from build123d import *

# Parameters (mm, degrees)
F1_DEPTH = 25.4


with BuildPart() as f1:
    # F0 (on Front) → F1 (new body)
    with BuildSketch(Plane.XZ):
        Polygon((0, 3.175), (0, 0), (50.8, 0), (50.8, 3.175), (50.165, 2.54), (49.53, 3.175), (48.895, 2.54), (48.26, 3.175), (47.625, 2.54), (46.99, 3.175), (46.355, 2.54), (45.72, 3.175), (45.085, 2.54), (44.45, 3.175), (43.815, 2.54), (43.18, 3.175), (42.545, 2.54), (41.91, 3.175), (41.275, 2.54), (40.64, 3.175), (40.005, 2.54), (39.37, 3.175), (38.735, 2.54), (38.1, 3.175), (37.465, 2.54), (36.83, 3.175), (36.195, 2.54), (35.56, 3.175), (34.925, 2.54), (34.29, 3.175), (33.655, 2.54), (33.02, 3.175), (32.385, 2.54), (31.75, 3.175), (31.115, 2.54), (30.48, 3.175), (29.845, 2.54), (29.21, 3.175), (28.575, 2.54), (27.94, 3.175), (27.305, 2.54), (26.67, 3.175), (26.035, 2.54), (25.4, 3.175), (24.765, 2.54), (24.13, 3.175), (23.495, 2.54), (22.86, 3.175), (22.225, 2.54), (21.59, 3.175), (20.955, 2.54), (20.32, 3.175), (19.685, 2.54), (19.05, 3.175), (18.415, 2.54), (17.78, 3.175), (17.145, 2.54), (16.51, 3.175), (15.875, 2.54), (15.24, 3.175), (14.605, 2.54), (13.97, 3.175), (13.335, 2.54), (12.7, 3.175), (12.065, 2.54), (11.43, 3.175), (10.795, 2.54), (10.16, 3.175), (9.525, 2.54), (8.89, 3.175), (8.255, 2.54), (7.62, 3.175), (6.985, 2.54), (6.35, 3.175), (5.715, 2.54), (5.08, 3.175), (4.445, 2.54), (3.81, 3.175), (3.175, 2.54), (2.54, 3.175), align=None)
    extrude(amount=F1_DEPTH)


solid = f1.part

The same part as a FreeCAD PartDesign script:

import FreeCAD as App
import Part
import Sketcher
from FreeCAD import Vector
Q = App.Units.Quantity

doc = App.newDocument("Part")
body = doc.addObject("PartDesign::Body", "Body")

sketch1 = body.newObject("Sketcher::SketchObject", "Sketch")
sketch1.AttachmentSupport = (doc.getObject("XZ_Plane"), [""])
sketch1.MapMode = "FlatFace"
sketch1.addGeometry([
    Part.LineSegment(Vector(0, 3.175, 0), Vector(0, 0, 0)),
    Part.LineSegment(Vector(0, 0, 0), Vector(50.8, 0, 0)),
    Part.LineSegment(Vector(50.8, 0, 0), Vector(50.8, 3.175, 0)),
    Part.LineSegment(Vector(50.8, 3.175, 0), Vector(50.165, 2.54, 0)),
    Part.LineSegment(Vector(50.165, 2.54, 0), Vector(49.53, 3.175, 0)),
    Part.LineSegment(Vector(49.53, 3.175, 0), Vector(48.895, 2.54, 0)),
    Part.LineSegment(Vector(48.895, 2.54, 0), Vector(48.26, 3.175, 0)),
    Part.LineSegment(Vector(48.26, 3.175, 0), Vector(47.625, 2.54, 0)),
    Part.LineSegment(Vector(47.625, 2.54, 0), Vector(46.99, 3.175, 0)),
    Part.LineSegment(Vector(46.99, 3.175, 0), Vector(46.355, 2.54, 0)),
    Part.LineSegment(Vector(46.355, 2.54, 0), Vector(45.72, 3.175, 0)),
    Part.LineSegment(Vector(45.72, 3.175, 0), Vector(45.085, 2.54, 0)),
    Part.LineSegment(Vector(45.085, 2.54, 0), Vector(44.45, 3.175, 0)),
    Part.LineSegment(Vector(44.45, 3.175, 0), Vector(43.815, 2.54, 0)),
    Part.LineSegment(Vector(43.815, 2.54, 0), Vector(43.18, 3.175, 0)),
    Part.LineSegment(Vector(43.18, 3.175, 0), Vector(42.545, 2.54, 0)),
    Part.LineSegment(Vector(42.545, 2.54, 0), Vector(41.91, 3.175, 0)),
    Part.LineSegment(Vector(41.91, 3.175, 0), Vector(41.275, 2.54, 0)),
    Part.LineSegment(Vector(41.275, 2.54, 0), Vector(40.64, 3.175, 0)),
    Part.LineSegment(Vector(40.64, 3.175, 0), Vector(40.005, 2.54, 0)),
    Part.LineSegment(Vector(40.005, 2.54, 0), Vector(39.37, 3.175, 0)),
    Part.LineSegment(Vector(39.37, 3.175, 0), Vector(38.735, 2.54, 0)),
    Part.LineSegment(Vector(38.735, 2.54, 0), Vector(38.1, 3.175, 0)),
    Part.LineSegment(Vector(38.1, 3.175, 0), Vector(37.465, 2.54, 0)),
    Part.LineSegment(Vector(37.465, 2.54, 0), Vector(36.83, 3.175, 0)),
    Part.LineSegment(Vector(36.83, 3.175, 0), Vector(36.195, 2.54, 0)),
    Part.LineSegment(Vector(36.195, 2.54, 0), Vector(35.56, 3.175, 0)),
    Part.LineSegment(Vector(35.56, 3.175, 0), Vector(34.925, 2.54, 0)),
    Part.LineSegment(Vector(34.925, 2.54, 0), Vector(34.29, 3.175, 0)),
    Part.LineSegment(Vector(34.29, 3.175, 0), Vector(33.655, 2.54, 0)),
    Part.LineSegment(Vector(33.655, 2.54, 0), Vector(33.02, 3.175, 0)),
    Part.LineSegment(Vector(33.02, 3.175, 0), Vector(32.385, 2.54, 0)),
    Part.LineSegment(Vector(32.385, 2.54, 0), Vector(31.75, 3.175, 0)),
    Part.LineSegment(Vector(31.75, 3.175, 0), Vector(31.115, 2.54, 0)),
    Part.LineSegment(Vector(31.115, 2.54, 0), Vector(30.48, 3.175, 0)),
    Part.LineSegment(Vector(30.48, 3.175, 0), Vector(29.845, 2.54, 0)),
    Part.LineSegment(Vector(29.845, 2.54, 0), Vector(29.21, 3.175, 0)),
    Part.LineSegment(Vector(29.21, 3.175, 0), Vector(28.575, 2.54, 0)),
    Part.LineSegment(Vector(28.575, 2.54, 0), Vector(27.94, 3.175, 0)),
    Part.LineSegment(Vector(27.94, 3.175, 0), Vector(27.305, 2.54, 0)),
    Part.LineSegment(Vector(27.305, 2.54, 0), Vector(26.67, 3.175, 0)),
    Part.LineSegment(Vector(26.67, 3.175, 0), Vector(26.035, 2.54, 0)),
    Part.LineSegment(Vector(26.035, 2.54, 0), Vector(25.4, 3.175, 0)),
    Part.LineSegment(Vector(25.4, 3.175, 0), Vector(24.765, 2.54, 0)),
    Part.LineSegment(Vector(24.765, 2.54, 0), Vector(24.13, 3.175, 0)),
    Part.LineSegment(Vector(24.13, 3.175, 0), Vector(23.495, 2.54, 0)),
    Part.LineSegment(Vector(23.495, 2.54, 0), Vector(22.86, 3.175, 0)),
    Part.LineSegment(Vector(22.86, 3.175, 0), Vector(22.225, 2.54, 0)),
    Part.LineSegment(Vector(22.225, 2.54, 0), Vector(21.59, 3.175, 0)),
    Part.LineSegment(Vector(21.59, 3.175, 0), Vector(20.955, 2.54, 0)),
    Part.LineSegment(Vector(20.955, 2.54, 0), Vector(20.32, 3.175, 0)),
    Part.LineSegment(Vector(20.32, 3.175, 0), Vector(19.685, 2.54, 0)),
    Part.LineSegment(Vector(19.685, 2.54, 0), Vector(19.05, 3.175, 0)),
    Part.LineSegment(Vector(19.05, 3.175, 0), Vector(18.415, 2.54, 0)),
    Part.LineSegment(Vector(18.415, 2.54, 0), Vector(17.78, 3.175, 0)),
    Part.LineSegment(Vector(17.78, 3.175, 0), Vector(17.145, 2.54, 0)),
    Part.LineSegment(Vector(17.145, 2.54, 0), Vector(16.51, 3.175, 0)),
    Part.LineSegment(Vector(16.51, 3.175, 0), Vector(15.875, 2.54, 0)),
    Part.LineSegment(Vector(15.875, 2.54, 0), Vector(15.24, 3.175, 0)),
    Part.LineSegment(Vector(15.24, 3.175, 0), Vector(14.605, 2.54, 0)),
    Part.LineSegment(Vector(14.605, 2.54, 0), Vector(13.97, 3.175, 0)),
    Part.LineSegment(Vector(13.97, 3.175, 0), Vector(13.335, 2.54, 0)),
    Part.LineSegment(Vector(13.335, 2.54, 0), Vector(12.7, 3.175, 0)),
    Part.LineSegment(Vector(12.7, 3.175, 0), Vector(12.065, 2.54, 0)),
    Part.LineSegment(Vector(12.065, 2.54, 0), Vector(11.43, 3.175, 0)),
    Part.LineSegment(Vector(11.43, 3.175, 0), Vector(10.795, 2.54, 0)),
    Part.LineSegment(Vector(10.795, 2.54, 0), Vector(10.16, 3.175, 0)),
    Part.LineSegment(Vector(10.16, 3.175, 0), Vector(9.525, 2.54, 0)),
    Part.LineSegment(Vector(9.525, 2.54, 0), Vector(8.89, 3.175, 0)),
    Part.LineSegment(Vector(8.89, 3.175, 0), Vector(8.255, 2.54, 0)),
    Part.LineSegment(Vector(8.255, 2.54, 0), Vector(7.62, 3.175, 0)),
    Part.LineSegment(Vector(7.62, 3.175, 0), Vector(6.985, 2.54, 0)),
    Part.LineSegment(Vector(6.985, 2.54, 0), Vector(6.35, 3.175, 0)),
    Part.LineSegment(Vector(6.35, 3.175, 0), Vector(5.715, 2.54, 0)),
    Part.LineSegment(Vector(5.715, 2.54, 0), Vector(5.08, 3.175, 0)),
    Part.LineSegment(Vector(5.08, 3.175, 0), Vector(4.445, 2.54, 0)),
    Part.LineSegment(Vector(4.445, 2.54, 0), Vector(3.81, 3.175, 0)),
    Part.LineSegment(Vector(3.81, 3.175, 0), Vector(3.175, 2.54, 0)),
    Part.LineSegment(Vector(3.175, 2.54, 0), Vector(2.54, 3.175, 0)),
    Part.LineSegment(Vector(2.54, 3.175, 0), Vector(0, 3.175, 0)),
], False)
sketch1.addConstraint([
    Sketcher.Constraint("Coincident", 0, 2, 1, 1),
    Sketcher.Constraint("Coincident", 1, 2, 2, 1),
    Sketcher.Constraint("Coincident", 2, 2, 3, 1),
    Sketcher.Constraint("Coincident", 3, 2, 4, 1),
    Sketcher.Constraint("Coincident", 4, 2, 5, 1),
    Sketcher.Constraint("Coincident", 5, 2, 6, 1),
    Sketcher.Constraint("Coincident", 6, 2, 7, 1),
    Sketcher.Constraint("Coincident", 7, 2, 8, 1),
    Sketcher.Constraint("Coincident", 8, 2, 9, 1),
    Sketcher.Constraint("Coincident", 9, 2, 10, 1),
    Sketcher.Constraint("Coincident", 10, 2, 11, 1),
    Sketcher.Constraint("Coincident", 11, 2, 12, 1),
    Sketcher.Constraint("Coincident", 12, 2, 13, 1),
    Sketcher.Constraint("Coincident", 13, 2, 14, 1),
    Sketcher.Constraint("Coincident", 14, 2, 15, 1),
    Sketcher.Constraint("Coincident", 15, 2, 16, 1),
    Sketcher.Constraint("Coincident", 16, 2, 17, 1),
    Sketcher.Constraint("Coincident", 17, 2, 18, 1),
    Sketcher.Constraint("Coincident", 18, 2, 19, 1),
    Sketcher.Constraint("Coincident", 19, 2, 20, 1),
    Sketcher.Constraint("Coincident", 20, 2, 21, 1),
    Sketcher.Constraint("Coincident", 21, 2, 22, 1),
    Sketcher.Constraint("Coincident", 22, 2, 23, 1),
    Sketcher.Constraint("Coincident", 23, 2, 24, 1),
    Sketcher.Constraint("Coincident", 24, 2, 25, 1),
    Sketcher.Constraint("Coincident", 25, 2, 26, 1),
    Sketcher.Constraint("Coincident", 26, 2, 27, 1),
    Sketcher.Constraint("Coincident", 27, 2, 28, 1),
    Sketcher.Constraint("Coincident", 28, 2, 29, 1),
    Sketcher.Constraint("Coincident", 29, 2, 30, 1),
    Sketcher.Constraint("Coincident", 30, 2, 31, 1),
    Sketcher.Constraint("Coincident", 31, 2, 32, 1),
    Sketcher.Constraint("Coincident", 32, 2, 33, 1),
    Sketcher.Constraint("Coincident", 33, 2, 34, 1),
    Sketcher.Constraint("Coincident", 34, 2, 35, 1),
    Sketcher.Constraint("Coincident", 35, 2, 36, 1),
    Sketcher.Constraint("Coincident", 36, 2, 37, 1),
    Sketcher.Constraint("Coincident", 37, 2, 38, 1),
    Sketcher.Constraint("Coincident", 38, 2, 39, 1),
    Sketcher.Constraint("Coincident", 39, 2, 40, 1),
    Sketcher.Constraint("Coincident", 40, 2, 41, 1),
    Sketcher.Constraint("Coincident", 41, 2, 42, 1),
    Sketcher.Constraint("Coincident", 42, 2, 43, 1),
    Sketcher.Constraint("Coincident", 43, 2, 44, 1),
    Sketcher.Constraint("Coincident", 44, 2, 45, 1),
    Sketcher.Constraint("Coincident", 45, 2, 46, 1),
    Sketcher.Constraint("Coincident", 46, 2, 47, 1),
    Sketcher.Constraint("Coincident", 47, 2, 48, 1),
    Sketcher.Constraint("Coincident", 48, 2, 49, 1),
    Sketcher.Constraint("Coincident", 49, 2, 50, 1),
    Sketcher.Constraint("Coincident", 50, 2, 51, 1),
    Sketcher.Constraint("Coincident", 51, 2, 52, 1),
    Sketcher.Constraint("Coincident", 52, 2, 53, 1),
    Sketcher.Constraint("Coincident", 53, 2, 54, 1),
    Sketcher.Constraint("Coincident", 54, 2, 55, 1),
    Sketcher.Constraint("Coincident", 55, 2, 56, 1),
    Sketcher.Constraint("Coincident", 56, 2, 57, 1),
    Sketcher.Constraint("Coincident", 57, 2, 58, 1),
    Sketcher.Constraint("Coincident", 58, 2, 59, 1),
    Sketcher.Constraint("Coincident", 59, 2, 60, 1),
    Sketcher.Constraint("Coincident", 60, 2, 61, 1),
    Sketcher.Constraint("Coincident", 61, 2, 62, 1),
    Sketcher.Constraint("Coincident", 62, 2, 63, 1),
    Sketcher.Constraint("Coincident", 63, 2, 64, 1),
    Sketcher.Constraint("Coincident", 64, 2, 65, 1),
    Sketcher.Constraint("Coincident", 65, 2, 66, 1),
    Sketcher.Constraint("Coincident", 66, 2, 67, 1),
    Sketcher.Constraint("Coincident", 67, 2, 68, 1),
    Sketcher.Constraint("Coincident", 68, 2, 69, 1),
    Sketcher.Constraint("Coincident", 69, 2, 70, 1),
    Sketcher.Constraint("Coincident", 70, 2, 71, 1),
    Sketcher.Constraint("Coincident", 71, 2, 72, 1),
    Sketcher.Constraint("Coincident", 72, 2, 73, 1),
    Sketcher.Constraint("Coincident", 73, 2, 74, 1),
    Sketcher.Constraint("Coincident", 74, 2, 75, 1),
    Sketcher.Constraint("Coincident", 75, 2, 76, 1),
    Sketcher.Constraint("Coincident", 76, 2, 77, 1),
    Sketcher.Constraint("Coincident", 77, 2, 78, 1),
    Sketcher.Constraint("Coincident", 78, 2, 79, 1),
    Sketcher.Constraint("Coincident", 79, 2, 0, 1),
    Sketcher.Constraint("Vertical", 0),
    Sketcher.Constraint("Horizontal", 1),
    Sketcher.Constraint("Vertical", 2),
    Sketcher.Constraint("Horizontal", 79),
    Sketcher.Constraint("Coincident", 0, 2, -1, 1),
    Sketcher.Constraint("Perpendicular", 3, 4),
    Sketcher.Constraint("Perpendicular", 4, 5),
    Sketcher.Constraint("Perpendicular", 5, 6),
    Sketcher.Constraint("Perpendicular", 6, 7),
    Sketcher.Constraint("Perpendicular", 7, 8),
    Sketcher.Constraint("Perpendicular", 8, 9),
    Sketcher.Constraint("Perpendicular", 9, 10),
    Sketcher.Constraint("Perpendicular", 10, 11),
    Sketcher.Constraint("Perpendicular", 11, 12),
    Sketcher.Constraint("Perpendicular", 12, 13),
    Sketcher.Constraint("Perpendicular", 13, 14),
    Sketcher.Constraint("Perpendicular", 14, 15),
    Sketcher.Constraint("Perpendicular", 15, 16),
    Sketcher.Constraint("Perpendicular", 16, 17),
    Sketcher.Constraint("Perpendicular", 17, 18),
    Sketcher.Constraint("Perpendicular", 18, 19),
    Sketcher.Constraint("Perpendicular", 19, 20),
    Sketcher.Constraint("Perpendicular", 20, 21),
    Sketcher.Constraint("Perpendicular", 21, 22),
    Sketcher.Constraint("Perpendicular", 22, 23),
    Sketcher.Constraint("Perpendicular", 23, 24),
    Sketcher.Constraint("Perpendicular", 24, 25),
    Sketcher.Constraint("Perpendicular", 25, 26),
    Sketcher.Constraint("Perpendicular", 26, 27),
    Sketcher.Constraint("Perpendicular", 27, 28),
    Sketcher.Constraint("Perpendicular", 28, 29),
    Sketcher.Constraint("Perpendicular", 29, 30),
    Sketcher.Constraint("Perpendicular", 30, 31),
    Sketcher.Constraint("Perpendicular", 31, 32),
    Sketcher.Constraint("Perpendicular", 32, 33),
    Sketcher.Constraint("Perpendicular", 33, 34),
    Sketcher.Constraint("Perpendicular", 34, 35),
    Sketcher.Constraint("Perpendicular", 35, 36),
    Sketcher.Constraint("Perpendicular", 36, 37),
    Sketcher.Constraint("Perpendicular", 37, 38),
    Sketcher.Constraint("Perpendicular", 38, 39),
    Sketcher.Constraint("Perpendicular", 39, 40),
    Sketcher.Constraint("Perpendicular", 40, 41),
    Sketcher.Constraint("Perpendicular", 41, 42),
    Sketcher.Constraint("Perpendicular", 42, 43),
    Sketcher.Constraint("Perpendicular", 43, 44),
    Sketcher.Constraint("Perpendicular", 44, 45),
    Sketcher.Constraint("Perpendicular", 45, 46),
    Sketcher.Constraint("Perpendicular", 46, 47),
    Sketcher.Constraint("Perpendicular", 47, 48),
    Sketcher.Constraint("Perpendicular", 48, 49),
    Sketcher.Constraint("Perpendicular", 49, 50),
    Sketcher.Constraint("Perpendicular", 50, 51),
    Sketcher.Constraint("Perpendicular", 51, 52),
    Sketcher.Constraint("Perpendicular", 52, 53),
    Sketcher.Constraint("Perpendicular", 53, 54),
    Sketcher.Constraint("Perpendicular", 54, 55),
    Sketcher.Constraint("Perpendicular", 55, 56),
    Sketcher.Constraint("Perpendicular", 56, 57),
    Sketcher.Constraint("Perpendicular", 57, 58),
    Sketcher.Constraint("Perpendicular", 58, 59),
    Sketcher.Constraint("Perpendicular", 59, 60),
    Sketcher.Constraint("Perpendicular", 60, 61),
    Sketcher.Constraint("Perpendicular", 61, 62),
    Sketcher.Constraint("Perpendicular", 62, 63),
    Sketcher.Constraint("Perpendicular", 63, 64),
    Sketcher.Constraint("Perpendicular", 64, 65),
    Sketcher.Constraint("Perpendicular", 65, 66),
    Sketcher.Constraint("Perpendicular", 66, 67),
    Sketcher.Constraint("Perpendicular", 67, 68),
    Sketcher.Constraint("Perpendicular", 68, 69),
    Sketcher.Constraint("Perpendicular", 69, 70),
    Sketcher.Constraint("Perpendicular", 70, 71),
    Sketcher.Constraint("Perpendicular", 71, 72),
    Sketcher.Constraint("Perpendicular", 72, 73),
    Sketcher.Constraint("Perpendicular", 73, 74),
    Sketcher.Constraint("Perpendicular", 74, 75),
    Sketcher.Constraint("Perpendicular", 75, 76),
    Sketcher.Constraint("Perpendicular", 76, 77),
    Sketcher.Constraint("Perpendicular", 77, 78),
    Sketcher.Constraint("Horizontal", 2, 2, 4, 2),
    Sketcher.Constraint("Horizontal", 3, 2, 5, 2),
    Sketcher.Constraint("Horizontal", 4, 2, 6, 2),
    Sketcher.Constraint("Horizontal", 5, 2, 7, 2),
    Sketcher.Constraint("Horizontal", 6, 2, 8, 2),
    Sketcher.Constraint("Horizontal", 7, 2, 9, 2),
    Sketcher.Constraint("Horizontal", 8, 2, 10, 2),
    Sketcher.Constraint("Horizontal", 9, 2, 11, 2),
    Sketcher.Constraint("Horizontal", 10, 2, 12, 2),
    Sketcher.Constraint("Horizontal", 11, 2, 13, 2),
    Sketcher.Constraint("Horizontal", 12, 2, 14, 2),
    Sketcher.Constraint("Horizontal", 13, 2, 15, 2),
    Sketcher.Constraint("Horizontal", 14, 2, 16, 2),
    Sketcher.Constraint("Horizontal", 15, 2, 17, 2),
    Sketcher.Constraint("Horizontal", 16, 2, 18, 2),
    Sketcher.Constraint("Horizontal", 17, 2, 19, 2),
    Sketcher.Constraint("Horizontal", 18, 2, 20, 2),
    Sketcher.Constraint("Horizontal", 19, 2, 21, 2),
    Sketcher.Constraint("Horizontal", 20, 2, 22, 2),
    Sketcher.Constraint("Horizontal", 21, 2, 23, 2),
    Sketcher.Constraint("Horizontal", 22, 2, 24, 2),
    Sketcher.Constraint("Horizontal", 23, 2, 25, 2),
    Sketcher.Constraint("Horizontal", 24, 2, 26, 2),
    Sketcher.Constraint("Horizontal", 25, 2, 27, 2),
    Sketcher.Constraint("Horizontal", 26, 2, 28, 2),
    Sketcher.Constraint("Horizontal", 27, 2, 29, 2),
    Sketcher.Constraint("Horizontal", 28, 2, 30, 2),
    Sketcher.Constraint("Horizontal", 29, 2, 31, 2),
    Sketcher.Constraint("Horizontal", 30, 2, 32, 2),
    Sketcher.Constraint("Horizontal", 31, 2, 33, 2),
    Sketcher.Constraint("Horizontal", 32, 2, 34, 2),
    Sketcher.Constraint("Horizontal", 33, 2, 35, 2),
    Sketcher.Constraint("Horizontal", 34, 2, 36, 2),
    Sketcher.Constraint("Horizontal", 35, 2, 37, 2),
    Sketcher.Constraint("Horizontal", 36, 2, 38, 2),
    Sketcher.Constraint("Horizontal", 37, 2, 39, 2),
    Sketcher.Constraint("Horizontal", 38, 2, 40, 2),
    Sketcher.Constraint("Horizontal", 39, 2, 41, 2),
    Sketcher.Constraint("Horizontal", 40, 2, 42, 2),
    Sketcher.Constraint("Horizontal", 41, 2, 43, 2),
    Sketcher.Constraint("Horizontal", 42, 2, 44, 2),
    Sketcher.Constraint("Horizontal", 43, 2, 45, 2),
    Sketcher.Constraint("Horizontal", 44, 2, 46, 2),
    Sketcher.Constraint("Horizontal", 45, 2, 47, 2),
    Sketcher.Constraint("Horizontal", 46, 2, 48, 2),
    Sketcher.Constraint("Horizontal", 47, 2, 49, 2),
    Sketcher.Constraint("Horizontal", 48, 2, 50, 2),
    Sketcher.Constraint("Horizontal", 49, 2, 51, 2),
    Sketcher.Constraint("Horizontal", 50, 2, 52, 2),
    Sketcher.Constraint("Horizontal", 51, 2, 53, 2),
    Sketcher.Constraint("Horizontal", 52, 2, 54, 2),
    Sketcher.Constraint("Horizontal", 53, 2, 55, 2),
    Sketcher.Constraint("Horizontal", 54, 2, 56, 2),
    Sketcher.Constraint("Horizontal", 55, 2, 57, 2),
    Sketcher.Constraint("Horizontal", 56, 2, 58, 2),
    Sketcher.Constraint("Horizontal", 57, 2, 59, 2),
    Sketcher.Constraint("Horizontal", 58, 2, 60, 2),
    Sketcher.Constraint("Horizontal", 59, 2, 61, 2),
    Sketcher.Constraint("Horizontal", 60, 2, 62, 2),
    Sketcher.Constraint("Horizontal", 61, 2, 63, 2),
    Sketcher.Constraint("Horizontal", 62, 2, 64, 2),
    Sketcher.Constraint("Horizontal", 63, 2, 65, 2),
    Sketcher.Constraint("Horizontal", 64, 2, 66, 2),
    Sketcher.Constraint("Horizontal", 65, 2, 67, 2),
    Sketcher.Constraint("Horizontal", 66, 2, 68, 2),
    Sketcher.Constraint("Horizontal", 67, 2, 69, 2),
    Sketcher.Constraint("Horizontal", 68, 2, 70, 2),
    Sketcher.Constraint("Horizontal", 69, 2, 71, 2),
    Sketcher.Constraint("Horizontal", 70, 2, 72, 2),
    Sketcher.Constraint("Horizontal", 71, 2, 73, 2),
    Sketcher.Constraint("Horizontal", 72, 2, 74, 2),
    Sketcher.Constraint("Horizontal", 73, 2, 75, 2),
    Sketcher.Constraint("Horizontal", 74, 2, 76, 2),
    Sketcher.Constraint("Horizontal", 75, 2, 77, 2),
    Sketcher.Constraint("Horizontal", 76, 2, 78, 2),
    Sketcher.Constraint("Equal", 3, 4),
    Sketcher.Constraint("DistanceX", 1, 1, 1, 2, Q("2 in")),
    Sketcher.Constraint("DistanceX", 79, 2, 79, 1, Q("0.1 in")),
    Sketcher.Constraint("DistanceY", -1, 1, 3, 2, Q("0.1 in")),
])
pad1 = body.newObject("PartDesign::Pad", "Pad")
pad1.Profile = sketch1
pad1.Length = Q("1 in")

doc.recompute()
